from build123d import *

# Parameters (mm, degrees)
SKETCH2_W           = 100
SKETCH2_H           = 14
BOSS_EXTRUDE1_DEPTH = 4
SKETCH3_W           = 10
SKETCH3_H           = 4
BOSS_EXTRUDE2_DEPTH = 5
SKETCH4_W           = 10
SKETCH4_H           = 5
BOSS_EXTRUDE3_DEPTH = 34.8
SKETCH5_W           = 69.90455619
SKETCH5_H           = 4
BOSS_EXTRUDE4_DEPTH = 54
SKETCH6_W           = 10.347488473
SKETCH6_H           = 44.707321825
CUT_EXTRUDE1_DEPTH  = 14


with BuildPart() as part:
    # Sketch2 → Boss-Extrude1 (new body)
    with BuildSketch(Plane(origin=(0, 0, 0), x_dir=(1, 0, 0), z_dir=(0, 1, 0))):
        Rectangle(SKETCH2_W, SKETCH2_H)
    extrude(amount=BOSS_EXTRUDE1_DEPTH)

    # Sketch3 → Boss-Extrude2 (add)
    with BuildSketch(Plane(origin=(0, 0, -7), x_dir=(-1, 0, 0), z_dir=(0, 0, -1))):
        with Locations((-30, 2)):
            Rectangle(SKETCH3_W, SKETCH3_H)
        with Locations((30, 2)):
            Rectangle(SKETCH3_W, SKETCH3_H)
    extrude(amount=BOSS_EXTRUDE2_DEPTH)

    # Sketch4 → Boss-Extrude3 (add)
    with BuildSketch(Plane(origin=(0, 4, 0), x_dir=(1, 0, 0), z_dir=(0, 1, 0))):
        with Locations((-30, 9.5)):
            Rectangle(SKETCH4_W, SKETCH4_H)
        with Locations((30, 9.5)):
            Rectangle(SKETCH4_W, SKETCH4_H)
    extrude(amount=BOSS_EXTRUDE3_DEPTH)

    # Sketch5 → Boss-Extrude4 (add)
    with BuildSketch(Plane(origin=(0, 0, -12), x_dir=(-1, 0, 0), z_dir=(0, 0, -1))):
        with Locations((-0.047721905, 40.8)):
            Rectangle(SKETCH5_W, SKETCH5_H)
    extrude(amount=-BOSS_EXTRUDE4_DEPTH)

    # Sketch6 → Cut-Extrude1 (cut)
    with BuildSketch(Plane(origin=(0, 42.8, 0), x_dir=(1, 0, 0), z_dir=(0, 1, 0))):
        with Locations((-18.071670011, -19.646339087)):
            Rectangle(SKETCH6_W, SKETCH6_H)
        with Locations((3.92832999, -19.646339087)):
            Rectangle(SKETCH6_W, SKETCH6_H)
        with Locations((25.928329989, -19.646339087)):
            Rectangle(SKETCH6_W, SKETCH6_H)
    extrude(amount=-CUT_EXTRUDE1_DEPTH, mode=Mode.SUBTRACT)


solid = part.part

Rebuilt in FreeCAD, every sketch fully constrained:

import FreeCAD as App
import Part
import Sketcher

V = App.Vector

doc = App.newDocument("Part")
body = doc.addObject("PartDesign::Body", "Body")

# Sketch on XZ plane
sketch1 = doc.addObject("Sketcher::SketchObject", "Sketch")
body.addObject(sketch1)
sketch1.AttachmentSupport = (doc.XZ_Plane, [""])
sketch1.MapMode = "FlatFace"
sketch1.addGeometry(Part.LineSegment(V(-50, -7, 0), V(-50, 7, 0)), False)
sketch1.addGeometry(Part.LineSegment(V(-50, 7, 0), V(50, 7, 0)), False)
sketch1.addGeometry(Part.LineSegment(V(50, 7, 0), V(50, -7, 0)), False)
sketch1.addGeometry(Part.LineSegment(V(50, -7, 0), V(-50, -7, 0)), False)
sketch1.addConstraint(Sketcher.Constraint("Coincident", 0, 2, 1, 1))
sketch1.addConstraint(Sketcher.Constraint("Coincident", 1, 2, 2, 1))
sketch1.addConstraint(Sketcher.Constraint("Coincident", 2, 2, 3, 1))
sketch1.addConstraint(Sketcher.Constraint("Coincident", 3, 2, 0, 1))
sketch1.addConstraint(Sketcher.Constraint("Vertical", 0))
sketch1.addConstraint(Sketcher.Constraint("Horizontal", 1))
sketch1.addConstraint(Sketcher.Constraint("Vertical", 2))
sketch1.addConstraint(Sketcher.Constraint("Horizontal", 3))
sketch1.addConstraint(Sketcher.Constraint("Symmetric", 0, 2, 2, 2, -1, 1))
sketch1.addConstraint(Sketcher.Constraint("DistanceX", 1, 1, 1, 2, 100.0))
sketch1.addConstraint(Sketcher.Constraint("DistanceY", 0, 1, 0, 2, 14.0))
pad1 = doc.addObject("PartDesign::Pad", "Pad")
body.addObject(pad1)
pad1.Profile = sketch1
pad1.Length = 4
pad1.Reversed = True

# Sketch on XY plane
sketch2 = doc.addObject("Sketcher::SketchObject", "Sketch001")
body.addObject(sketch2)
sketch2.AttachmentSupport = (doc.XY_Plane, [""])
sketch2.MapMode = "FlatFace"
sketch2.AttachmentOffset = App.Placement(V(0, 0, -7), App.Rotation())
sketch2.addGeometry(Part.LineSegment(V(35, 4, 0), V(35, 0, 0)), False)
sketch2.addGeometry(Part.LineSegment(V(35, 0, 0), V(25, 0, 0)), False)
sketch2.addGeometry(Part.LineSegment(V(25, 0, 0), V(25, 4, 0)), False)
sketch2.addGeometry(Part.LineSegment(V(25, 4, 0), V(35, 4, 0)), False)
sketch2.addGeometry(Part.LineSegment(V(-25, 4, 0), V(-25, 0, 0)), False)
sketch2.addGeometry(Part.LineSegment(V(-25, 0, 0), V(-35, 0, 0)), False)
sketch2.addGeometry(Part.LineSegment(V(-35, 0, 0), V(-35, 4, 0)), False)
sketch2.addGeometry(Part.LineSegment(V(-35, 4, 0), V(-25, 4, 0)), False)
sketch2.addConstraint(Sketcher.Constraint("Coincident", 0, 2, 1, 1))
sketch2.addConstraint(Sketcher.Constraint("Coincident", 1, 2, 2, 1))
sketch2.addConstraint(Sketcher.Constraint("Coincident", 2, 2, 3, 1))
sketch2.addConstraint(Sketcher.Constraint("Coincident", 3, 2, 0, 1))
sketch2.addConstraint(Sketcher.Constraint("Coincident", 4, 2, 5, 1))
sketch2.addConstraint(Sketcher.Constraint("Coincident", 5, 2, 6, 1))
sketch2.addConstraint(Sketcher.Constraint("Coincident", 6, 2, 7, 1))
sketch2.addConstraint(Sketcher.Constraint("Coincident", 7, 2, 4, 1))
sketch2.addConstraint(Sketcher.Constraint("Vertical", 0))
sketch2.addConstraint(Sketcher.Constraint("Horizontal", 1))
sketch2.addConstraint(Sketcher.Constraint("Vertical", 2))
sketch2.addConstraint(Sketcher.Constraint("Horizontal", 3))
sketch2.addConstraint(Sketcher.Constraint("Vertical", 4))
sketch2.addConstraint(Sketcher.Constraint("Horizontal", 5))
sketch2.addConstraint(Sketcher.Constraint("Vertical", 6))
sketch2.addConstraint(Sketcher.Constraint("Horizontal", 7))
sketch2.addConstraint(Sketcher.Constraint("Symmetric", 1, 2, 4, 2, -1, 1))
sketch2.addConstraint(Sketcher.Constraint("Symmetric", 0, 2, 5, 2, -2))
sketch2.addConstraint(Sketcher.Constraint("Horizontal", 3, 2, 6, 2))
sketch2.addConstraint(Sketcher.Constraint("DistanceX", 1, 2, 1, 1, 10.0))
sketch2.addConstraint(Sketcher.Constraint("DistanceY", 0, 2, 0, 1, 4.0))
sketch2.addConstraint(Sketcher.Constraint("DistanceX", -1, 1, 0, 2, 35.0))
pad2 = doc.addObject("PartDesign::Pad", "Pad001")
body.addObject(pad2)
pad2.Profile = sketch2
pad2.Length = 5
pad2.Reversed = True

# Sketch on XZ plane
sketch3 = doc.addObject("Sketcher::SketchObject", "Sketch002")
body.addObject(sketch3)
sketch3.AttachmentSupport = (doc.XZ_Plane, [""])
sketch3.MapMode = "FlatFace"
sketch3.AttachmentOffset = App.Placement(V(0, 0, -4), App.Rotation())
sketch3.addGeometry(Part.LineSegment(V(-35, -12, 0), V(-35, -7, 0)), False)
sketch3.addGeometry(Part.LineSegment(V(-35, -7, 0), V(-25, -7, 0)), False)
sketch3.addGeometry(Part.LineSegment(V(-25, -7, 0), V(-25, -12, 0)), False)
sketch3.addGeometry(Part.LineSegment(V(-25, -12, 0), V(-35, -12, 0)), False)
sketch3.addGeometry(Part.LineSegment(V(25, -12, 0), V(25, -7, 0)), False)
sketch3.addGeometry(Part.LineSegment(V(25, -7, 0), V(35, -7, 0)), False)
sketch3.addGeometry(Part.LineSegment(V(35, -7, 0), V(35, -12, 0)), False)
sketch3.addGeometry(Part.LineSegment(V(35, -12, 0), V(25, -12, 0)), False)
sketch3.addConstraint(Sketcher.Constraint("Coincident", 0, 2, 1, 1))
sketch3.addConstraint(Sketcher.Constraint("Coincident", 1, 2, 2, 1))
sketch3.addConstraint(Sketcher.Constraint("Coincident", 2, 2, 3, 1))
sketch3.addConstraint(Sketcher.Constraint("Coincident", 3, 2, 0, 1))
sketch3.addConstraint(Sketcher.Constraint("Coincident", 4, 2, 5, 1))
sketch3.addConstraint(Sketcher.Constraint("Coincident", 5, 2, 6, 1))
sketch3.addConstraint(Sketcher.Constraint("Coincident", 6, 2, 7, 1))
sketch3.addConstraint(Sketcher.Constraint("Coincident", 7, 2, 4, 1))
sketch3.addConstraint(Sketcher.Constraint("Vertical", 0))
sketch3.addConstraint(Sketcher.Constraint("Horizontal", 1))
sketch3.addConstraint(Sketcher.Constraint("Vertical", 2))
sketch3.addConstraint(Sketcher.Constraint("Horizontal", 3))
sketch3.addConstraint(Sketcher.Constraint("Vertical", 4))
sketch3.addConstraint(Sketcher.Constraint("Horizontal", 5))
sketch3.addConstraint(Sketcher.Constraint("Vertical", 6))
sketch3.addConstraint(Sketcher.Constraint("Horizontal", 7))
sketch3.addConstraint(Sketcher.Constraint("Symmetric", 1, 2, 4, 2, -2))
sketch3.addConstraint(Sketcher.Constraint("Symmetric", 3, 2, 6, 2, -2))
sketch3.addConstraint(Sketcher.Constraint("DistanceX", 1, 1, 1, 2, 10.0))
sketch3.addConstraint(Sketcher.Constraint("DistanceY", 0, 1, 0, 2, 5.0))
sketch3.addConstraint(Sketcher.Constraint("DistanceX", 0, 2, -1, 1, 35.0))
sketch3.addConstraint(Sketcher.Constraint("DistanceY", 0, 2, -1, 1, 7.0))
pad3 = doc.addObject("PartDesign::Pad", "Pad002")
body.addObject(pad3)
pad3.Profile = sketch3
pad3.Length = 34.8
pad3.Reversed = True

# Sketch on XY plane
sketch4 = doc.addObject("Sketcher::SketchObject", "Sketch003")
body.addObject(sketch4)
sketch4.AttachmentSupport = (doc.XY_Plane, [""])
sketch4.MapMode = "FlatFace"
sketch4.AttachmentOffset = App.Placement(V(0, 0, -12), App.Rotation())
sketch4.addGeometry(Part.LineSegment(V(35, 42.8, 0), V(35, 38.8, 0)), False)
sketch4.addGeometry(Part.LineSegment(V(35, 38.8, 0), V(-34.904556, 38.8, 0)), False)
sketch4.addGeometry(Part.LineSegment(V(-34.904556, 38.8, 0), V(-34.904556, 42.8, 0)), False)
sketch4.addGeometry(Part.LineSegment(V(-34.904556, 42.8, 0), V(35, 42.8, 0)), False)
sketch4.addConstraint(Sketcher.Constraint("Coincident", 0, 2, 1, 1))
sketch4.addConstraint(Sketcher.Constraint("Coincident", 1, 2, 2, 1))
sketch4.addConstraint(Sketcher.Constraint("Coincident", 2, 2, 3, 1))
sketch4.addConstraint(Sketcher.Constraint("Coincident", 3, 2, 0, 1))
sketch4.addConstraint(Sketcher.Constraint("Vertical", 0))
sketch4.addConstraint(Sketcher.Constraint("Horizontal", 1))
sketch4.addConstraint(Sketcher.Constraint("Vertical", 2))
sketch4.addConstraint(Sketcher.Constraint("Horizontal", 3))
sketch4.addConstraint(Sketcher.Constraint("DistanceY", 0, 2, 0, 1, 4.0))
sketch4.addConstraint(Sketcher.Constraint("DistanceX", -1, 1, 0, 2, 35.0))
sketch4.addConstraint(Sketcher.Constraint("DistanceY", -1, 1, 0, 2, 38.8))
sketch4.addConstraint(Sketcher.Constraint("DistanceX", 1, 2, 1, 1, 69.904556))
pad4 = doc.addObject("PartDesign::Pad", "Pad003")
body.addObject(pad4)
pad4.Profile = sketch4
pad4.Length = 54

# Sketch on XZ plane
sketch5 = doc.addObject("Sketcher::SketchObject", "Sketch004")
body.addObject(sketch5)
sketch5.AttachmentSupport = (doc.XZ_Plane, [""])
sketch5.MapMode = "FlatFace"
sketch5.AttachmentOffset = App.Placement(V(0, 0, -42.8), App.Rotation())
sketch5.addGeometry(Part.LineSegment(V(-23.245414, -2.707322, 0), V(-23.245414, 42, 0)), False)
sketch5.addGeometry(Part.LineSegment(V(-23.245414, 42, 0), V(-12.897926, 42, 0)), False)
sketch5.addGeometry(Part.LineSegment(V(-12.897926, 42, 0), V(-12.897926, -2.707322, 0)), False)
sketch5.addGeometry(Part.LineSegment(V(-12.897926, -2.707322, 0), V(-23.245414, -2.707322, 0)), False)
sketch5.addGeometry(Part.LineSegment(V(-1.245414, -2.707322, 0), V(-1.245414, 42, 0)), False)
sketch5.addGeometry(Part.LineSegment(V(-1.245414, 42, 0), V(9.102074, 42, 0)), False)
sketch5.addGeometry(Part.LineSegment(V(9.102074, 42, 0), V(9.102074, -2.707322, 0)), False)
sketch5.addGeometry(Part.LineSegment(V(9.102074, -2.707322, 0), V(-1.245414, -2.707322, 0)), False)
sketch5.addGeometry(Part.LineSegment(V(20.754586, -2.707322, 0), V(20.754586, 42, 0)), False)
sketch5.addGeometry(Part.LineSegment(V(20.754586, 42, 0), V(31.102074, 42, 0)), False)
sketch5.addGeometry(Part.LineSegment(V(31.102074, 42, 0), V(31.102074, -2.707322, 0)), False)
sketch5.addGeometry(Part.LineSegment(V(31.102074, -2.707322, 0), V(20.754586, -2.707322, 0)), False)
sketch5.addConstraint(Sketcher.Constraint("Coincident", 0, 2, 1, 1))
sketch5.addConstraint(Sketcher.Constraint("Coincident", 1, 2, 2, 1))
sketch5.addConstraint(Sketcher.Constraint("Coincident", 2, 2, 3, 1))
sketch5.addConstraint(Sketcher.Constraint("Coincident", 3, 2, 0, 1))
sketch5.addConstraint(Sketcher.Constraint("Coincident", 4, 2, 5, 1))
sketch5.addConstraint(Sketcher.Constraint("Coincident", 5, 2, 6, 1))
sketch5.addConstraint(Sketcher.Constraint("Coincident", 6, 2, 7, 1))
sketch5.addConstraint(Sketcher.Constraint("Coincident", 7, 2, 4, 1))
sketch5.addConstraint(Sketcher.Constraint("Coincident", 8, 2, 9, 1))
sketch5.addConstraint(Sketcher.Constraint("Coincident", 9, 2, 10, 1))
sketch5.addConstraint(Sketcher.Constraint("Coincident", 10, 2, 11, 1))
sketch5.addConstraint(Sketcher.Constraint("Coincident", 11, 2, 8, 1))
sketch5.addConstraint(Sketcher.Constraint("Vertical", 0))
sketch5.addConstraint(Sketcher.Constraint("Horizontal", 1))
sketch5.addConstraint(Sketcher.Constraint("Vertical", 2))
sketch5.addConstraint(Sketcher.Constraint("Horizontal", 3))
sketch5.addConstraint(Sketcher.Constraint("Vertical", 4))
sketch5.addConstraint(Sketcher.Constraint("Horizontal", 5))
sketch5.addConstraint(Sketcher.Constraint("Vertical", 6))
sketch5.addConstraint(Sketcher.Constraint("Horizontal", 7))
sketch5.addConstraint(Sketcher.Constraint("Vertical", 8))
sketch5.addConstraint(Sketcher.Constraint("Horizontal", 9))
sketch5.addConstraint(Sketcher.Constraint("Vertical", 10))
sketch5.addConstraint(Sketcher.Constraint("Horizontal", 11))
sketch5.addConstraint(Sketcher.Constraint("Horizontal", 1, 2, 4, 2))
sketch5.addConstraint(Sketcher.Constraint("Horizontal", 3, 2, 6, 2))
sketch5.addConstraint(Sketcher.Constraint("Horizontal", 5, 2, 8, 2))
sketch5.addConstraint(Sketcher.Constraint("Horizontal", 7, 2, 10, 2))
sketch5.addConstraint(Sketcher.Constraint("Equal", 3, 5))
sketch5.addConstraint(Sketcher.Constraint("Equal", 7, 9))
sketch5.addConstraint(Sketcher.Constraint("DistanceY", -1, 1, 0, 2, 42.0))
sketch5.addConstraint(Sketcher.Constraint("DistanceX", 0, 2, 4, 2, 22.0))
sketch5.addConstraint(Sketcher.Constraint("DistanceX", 4, 2, 8, 2, 22.0))
sketch5.addConstraint(Sketcher.Constraint("DistanceX", 1, 1, 1, 2, 10.347488))
sketch5.addConstraint(Sketcher.Constraint("DistanceY", 0, 1, 0, 2, 44.707322))
sketch5.addConstraint(Sketcher.Constraint("DistanceX", 0, 2, -1, 1, 23.245414))
pocket1 = doc.addObject("PartDesign::Pocket", "Pocket")
body.addObject(pocket1)
pocket1.Profile = sketch5
pocket1.Length = 14
pocket1.Reversed = True

doc.recompute()
